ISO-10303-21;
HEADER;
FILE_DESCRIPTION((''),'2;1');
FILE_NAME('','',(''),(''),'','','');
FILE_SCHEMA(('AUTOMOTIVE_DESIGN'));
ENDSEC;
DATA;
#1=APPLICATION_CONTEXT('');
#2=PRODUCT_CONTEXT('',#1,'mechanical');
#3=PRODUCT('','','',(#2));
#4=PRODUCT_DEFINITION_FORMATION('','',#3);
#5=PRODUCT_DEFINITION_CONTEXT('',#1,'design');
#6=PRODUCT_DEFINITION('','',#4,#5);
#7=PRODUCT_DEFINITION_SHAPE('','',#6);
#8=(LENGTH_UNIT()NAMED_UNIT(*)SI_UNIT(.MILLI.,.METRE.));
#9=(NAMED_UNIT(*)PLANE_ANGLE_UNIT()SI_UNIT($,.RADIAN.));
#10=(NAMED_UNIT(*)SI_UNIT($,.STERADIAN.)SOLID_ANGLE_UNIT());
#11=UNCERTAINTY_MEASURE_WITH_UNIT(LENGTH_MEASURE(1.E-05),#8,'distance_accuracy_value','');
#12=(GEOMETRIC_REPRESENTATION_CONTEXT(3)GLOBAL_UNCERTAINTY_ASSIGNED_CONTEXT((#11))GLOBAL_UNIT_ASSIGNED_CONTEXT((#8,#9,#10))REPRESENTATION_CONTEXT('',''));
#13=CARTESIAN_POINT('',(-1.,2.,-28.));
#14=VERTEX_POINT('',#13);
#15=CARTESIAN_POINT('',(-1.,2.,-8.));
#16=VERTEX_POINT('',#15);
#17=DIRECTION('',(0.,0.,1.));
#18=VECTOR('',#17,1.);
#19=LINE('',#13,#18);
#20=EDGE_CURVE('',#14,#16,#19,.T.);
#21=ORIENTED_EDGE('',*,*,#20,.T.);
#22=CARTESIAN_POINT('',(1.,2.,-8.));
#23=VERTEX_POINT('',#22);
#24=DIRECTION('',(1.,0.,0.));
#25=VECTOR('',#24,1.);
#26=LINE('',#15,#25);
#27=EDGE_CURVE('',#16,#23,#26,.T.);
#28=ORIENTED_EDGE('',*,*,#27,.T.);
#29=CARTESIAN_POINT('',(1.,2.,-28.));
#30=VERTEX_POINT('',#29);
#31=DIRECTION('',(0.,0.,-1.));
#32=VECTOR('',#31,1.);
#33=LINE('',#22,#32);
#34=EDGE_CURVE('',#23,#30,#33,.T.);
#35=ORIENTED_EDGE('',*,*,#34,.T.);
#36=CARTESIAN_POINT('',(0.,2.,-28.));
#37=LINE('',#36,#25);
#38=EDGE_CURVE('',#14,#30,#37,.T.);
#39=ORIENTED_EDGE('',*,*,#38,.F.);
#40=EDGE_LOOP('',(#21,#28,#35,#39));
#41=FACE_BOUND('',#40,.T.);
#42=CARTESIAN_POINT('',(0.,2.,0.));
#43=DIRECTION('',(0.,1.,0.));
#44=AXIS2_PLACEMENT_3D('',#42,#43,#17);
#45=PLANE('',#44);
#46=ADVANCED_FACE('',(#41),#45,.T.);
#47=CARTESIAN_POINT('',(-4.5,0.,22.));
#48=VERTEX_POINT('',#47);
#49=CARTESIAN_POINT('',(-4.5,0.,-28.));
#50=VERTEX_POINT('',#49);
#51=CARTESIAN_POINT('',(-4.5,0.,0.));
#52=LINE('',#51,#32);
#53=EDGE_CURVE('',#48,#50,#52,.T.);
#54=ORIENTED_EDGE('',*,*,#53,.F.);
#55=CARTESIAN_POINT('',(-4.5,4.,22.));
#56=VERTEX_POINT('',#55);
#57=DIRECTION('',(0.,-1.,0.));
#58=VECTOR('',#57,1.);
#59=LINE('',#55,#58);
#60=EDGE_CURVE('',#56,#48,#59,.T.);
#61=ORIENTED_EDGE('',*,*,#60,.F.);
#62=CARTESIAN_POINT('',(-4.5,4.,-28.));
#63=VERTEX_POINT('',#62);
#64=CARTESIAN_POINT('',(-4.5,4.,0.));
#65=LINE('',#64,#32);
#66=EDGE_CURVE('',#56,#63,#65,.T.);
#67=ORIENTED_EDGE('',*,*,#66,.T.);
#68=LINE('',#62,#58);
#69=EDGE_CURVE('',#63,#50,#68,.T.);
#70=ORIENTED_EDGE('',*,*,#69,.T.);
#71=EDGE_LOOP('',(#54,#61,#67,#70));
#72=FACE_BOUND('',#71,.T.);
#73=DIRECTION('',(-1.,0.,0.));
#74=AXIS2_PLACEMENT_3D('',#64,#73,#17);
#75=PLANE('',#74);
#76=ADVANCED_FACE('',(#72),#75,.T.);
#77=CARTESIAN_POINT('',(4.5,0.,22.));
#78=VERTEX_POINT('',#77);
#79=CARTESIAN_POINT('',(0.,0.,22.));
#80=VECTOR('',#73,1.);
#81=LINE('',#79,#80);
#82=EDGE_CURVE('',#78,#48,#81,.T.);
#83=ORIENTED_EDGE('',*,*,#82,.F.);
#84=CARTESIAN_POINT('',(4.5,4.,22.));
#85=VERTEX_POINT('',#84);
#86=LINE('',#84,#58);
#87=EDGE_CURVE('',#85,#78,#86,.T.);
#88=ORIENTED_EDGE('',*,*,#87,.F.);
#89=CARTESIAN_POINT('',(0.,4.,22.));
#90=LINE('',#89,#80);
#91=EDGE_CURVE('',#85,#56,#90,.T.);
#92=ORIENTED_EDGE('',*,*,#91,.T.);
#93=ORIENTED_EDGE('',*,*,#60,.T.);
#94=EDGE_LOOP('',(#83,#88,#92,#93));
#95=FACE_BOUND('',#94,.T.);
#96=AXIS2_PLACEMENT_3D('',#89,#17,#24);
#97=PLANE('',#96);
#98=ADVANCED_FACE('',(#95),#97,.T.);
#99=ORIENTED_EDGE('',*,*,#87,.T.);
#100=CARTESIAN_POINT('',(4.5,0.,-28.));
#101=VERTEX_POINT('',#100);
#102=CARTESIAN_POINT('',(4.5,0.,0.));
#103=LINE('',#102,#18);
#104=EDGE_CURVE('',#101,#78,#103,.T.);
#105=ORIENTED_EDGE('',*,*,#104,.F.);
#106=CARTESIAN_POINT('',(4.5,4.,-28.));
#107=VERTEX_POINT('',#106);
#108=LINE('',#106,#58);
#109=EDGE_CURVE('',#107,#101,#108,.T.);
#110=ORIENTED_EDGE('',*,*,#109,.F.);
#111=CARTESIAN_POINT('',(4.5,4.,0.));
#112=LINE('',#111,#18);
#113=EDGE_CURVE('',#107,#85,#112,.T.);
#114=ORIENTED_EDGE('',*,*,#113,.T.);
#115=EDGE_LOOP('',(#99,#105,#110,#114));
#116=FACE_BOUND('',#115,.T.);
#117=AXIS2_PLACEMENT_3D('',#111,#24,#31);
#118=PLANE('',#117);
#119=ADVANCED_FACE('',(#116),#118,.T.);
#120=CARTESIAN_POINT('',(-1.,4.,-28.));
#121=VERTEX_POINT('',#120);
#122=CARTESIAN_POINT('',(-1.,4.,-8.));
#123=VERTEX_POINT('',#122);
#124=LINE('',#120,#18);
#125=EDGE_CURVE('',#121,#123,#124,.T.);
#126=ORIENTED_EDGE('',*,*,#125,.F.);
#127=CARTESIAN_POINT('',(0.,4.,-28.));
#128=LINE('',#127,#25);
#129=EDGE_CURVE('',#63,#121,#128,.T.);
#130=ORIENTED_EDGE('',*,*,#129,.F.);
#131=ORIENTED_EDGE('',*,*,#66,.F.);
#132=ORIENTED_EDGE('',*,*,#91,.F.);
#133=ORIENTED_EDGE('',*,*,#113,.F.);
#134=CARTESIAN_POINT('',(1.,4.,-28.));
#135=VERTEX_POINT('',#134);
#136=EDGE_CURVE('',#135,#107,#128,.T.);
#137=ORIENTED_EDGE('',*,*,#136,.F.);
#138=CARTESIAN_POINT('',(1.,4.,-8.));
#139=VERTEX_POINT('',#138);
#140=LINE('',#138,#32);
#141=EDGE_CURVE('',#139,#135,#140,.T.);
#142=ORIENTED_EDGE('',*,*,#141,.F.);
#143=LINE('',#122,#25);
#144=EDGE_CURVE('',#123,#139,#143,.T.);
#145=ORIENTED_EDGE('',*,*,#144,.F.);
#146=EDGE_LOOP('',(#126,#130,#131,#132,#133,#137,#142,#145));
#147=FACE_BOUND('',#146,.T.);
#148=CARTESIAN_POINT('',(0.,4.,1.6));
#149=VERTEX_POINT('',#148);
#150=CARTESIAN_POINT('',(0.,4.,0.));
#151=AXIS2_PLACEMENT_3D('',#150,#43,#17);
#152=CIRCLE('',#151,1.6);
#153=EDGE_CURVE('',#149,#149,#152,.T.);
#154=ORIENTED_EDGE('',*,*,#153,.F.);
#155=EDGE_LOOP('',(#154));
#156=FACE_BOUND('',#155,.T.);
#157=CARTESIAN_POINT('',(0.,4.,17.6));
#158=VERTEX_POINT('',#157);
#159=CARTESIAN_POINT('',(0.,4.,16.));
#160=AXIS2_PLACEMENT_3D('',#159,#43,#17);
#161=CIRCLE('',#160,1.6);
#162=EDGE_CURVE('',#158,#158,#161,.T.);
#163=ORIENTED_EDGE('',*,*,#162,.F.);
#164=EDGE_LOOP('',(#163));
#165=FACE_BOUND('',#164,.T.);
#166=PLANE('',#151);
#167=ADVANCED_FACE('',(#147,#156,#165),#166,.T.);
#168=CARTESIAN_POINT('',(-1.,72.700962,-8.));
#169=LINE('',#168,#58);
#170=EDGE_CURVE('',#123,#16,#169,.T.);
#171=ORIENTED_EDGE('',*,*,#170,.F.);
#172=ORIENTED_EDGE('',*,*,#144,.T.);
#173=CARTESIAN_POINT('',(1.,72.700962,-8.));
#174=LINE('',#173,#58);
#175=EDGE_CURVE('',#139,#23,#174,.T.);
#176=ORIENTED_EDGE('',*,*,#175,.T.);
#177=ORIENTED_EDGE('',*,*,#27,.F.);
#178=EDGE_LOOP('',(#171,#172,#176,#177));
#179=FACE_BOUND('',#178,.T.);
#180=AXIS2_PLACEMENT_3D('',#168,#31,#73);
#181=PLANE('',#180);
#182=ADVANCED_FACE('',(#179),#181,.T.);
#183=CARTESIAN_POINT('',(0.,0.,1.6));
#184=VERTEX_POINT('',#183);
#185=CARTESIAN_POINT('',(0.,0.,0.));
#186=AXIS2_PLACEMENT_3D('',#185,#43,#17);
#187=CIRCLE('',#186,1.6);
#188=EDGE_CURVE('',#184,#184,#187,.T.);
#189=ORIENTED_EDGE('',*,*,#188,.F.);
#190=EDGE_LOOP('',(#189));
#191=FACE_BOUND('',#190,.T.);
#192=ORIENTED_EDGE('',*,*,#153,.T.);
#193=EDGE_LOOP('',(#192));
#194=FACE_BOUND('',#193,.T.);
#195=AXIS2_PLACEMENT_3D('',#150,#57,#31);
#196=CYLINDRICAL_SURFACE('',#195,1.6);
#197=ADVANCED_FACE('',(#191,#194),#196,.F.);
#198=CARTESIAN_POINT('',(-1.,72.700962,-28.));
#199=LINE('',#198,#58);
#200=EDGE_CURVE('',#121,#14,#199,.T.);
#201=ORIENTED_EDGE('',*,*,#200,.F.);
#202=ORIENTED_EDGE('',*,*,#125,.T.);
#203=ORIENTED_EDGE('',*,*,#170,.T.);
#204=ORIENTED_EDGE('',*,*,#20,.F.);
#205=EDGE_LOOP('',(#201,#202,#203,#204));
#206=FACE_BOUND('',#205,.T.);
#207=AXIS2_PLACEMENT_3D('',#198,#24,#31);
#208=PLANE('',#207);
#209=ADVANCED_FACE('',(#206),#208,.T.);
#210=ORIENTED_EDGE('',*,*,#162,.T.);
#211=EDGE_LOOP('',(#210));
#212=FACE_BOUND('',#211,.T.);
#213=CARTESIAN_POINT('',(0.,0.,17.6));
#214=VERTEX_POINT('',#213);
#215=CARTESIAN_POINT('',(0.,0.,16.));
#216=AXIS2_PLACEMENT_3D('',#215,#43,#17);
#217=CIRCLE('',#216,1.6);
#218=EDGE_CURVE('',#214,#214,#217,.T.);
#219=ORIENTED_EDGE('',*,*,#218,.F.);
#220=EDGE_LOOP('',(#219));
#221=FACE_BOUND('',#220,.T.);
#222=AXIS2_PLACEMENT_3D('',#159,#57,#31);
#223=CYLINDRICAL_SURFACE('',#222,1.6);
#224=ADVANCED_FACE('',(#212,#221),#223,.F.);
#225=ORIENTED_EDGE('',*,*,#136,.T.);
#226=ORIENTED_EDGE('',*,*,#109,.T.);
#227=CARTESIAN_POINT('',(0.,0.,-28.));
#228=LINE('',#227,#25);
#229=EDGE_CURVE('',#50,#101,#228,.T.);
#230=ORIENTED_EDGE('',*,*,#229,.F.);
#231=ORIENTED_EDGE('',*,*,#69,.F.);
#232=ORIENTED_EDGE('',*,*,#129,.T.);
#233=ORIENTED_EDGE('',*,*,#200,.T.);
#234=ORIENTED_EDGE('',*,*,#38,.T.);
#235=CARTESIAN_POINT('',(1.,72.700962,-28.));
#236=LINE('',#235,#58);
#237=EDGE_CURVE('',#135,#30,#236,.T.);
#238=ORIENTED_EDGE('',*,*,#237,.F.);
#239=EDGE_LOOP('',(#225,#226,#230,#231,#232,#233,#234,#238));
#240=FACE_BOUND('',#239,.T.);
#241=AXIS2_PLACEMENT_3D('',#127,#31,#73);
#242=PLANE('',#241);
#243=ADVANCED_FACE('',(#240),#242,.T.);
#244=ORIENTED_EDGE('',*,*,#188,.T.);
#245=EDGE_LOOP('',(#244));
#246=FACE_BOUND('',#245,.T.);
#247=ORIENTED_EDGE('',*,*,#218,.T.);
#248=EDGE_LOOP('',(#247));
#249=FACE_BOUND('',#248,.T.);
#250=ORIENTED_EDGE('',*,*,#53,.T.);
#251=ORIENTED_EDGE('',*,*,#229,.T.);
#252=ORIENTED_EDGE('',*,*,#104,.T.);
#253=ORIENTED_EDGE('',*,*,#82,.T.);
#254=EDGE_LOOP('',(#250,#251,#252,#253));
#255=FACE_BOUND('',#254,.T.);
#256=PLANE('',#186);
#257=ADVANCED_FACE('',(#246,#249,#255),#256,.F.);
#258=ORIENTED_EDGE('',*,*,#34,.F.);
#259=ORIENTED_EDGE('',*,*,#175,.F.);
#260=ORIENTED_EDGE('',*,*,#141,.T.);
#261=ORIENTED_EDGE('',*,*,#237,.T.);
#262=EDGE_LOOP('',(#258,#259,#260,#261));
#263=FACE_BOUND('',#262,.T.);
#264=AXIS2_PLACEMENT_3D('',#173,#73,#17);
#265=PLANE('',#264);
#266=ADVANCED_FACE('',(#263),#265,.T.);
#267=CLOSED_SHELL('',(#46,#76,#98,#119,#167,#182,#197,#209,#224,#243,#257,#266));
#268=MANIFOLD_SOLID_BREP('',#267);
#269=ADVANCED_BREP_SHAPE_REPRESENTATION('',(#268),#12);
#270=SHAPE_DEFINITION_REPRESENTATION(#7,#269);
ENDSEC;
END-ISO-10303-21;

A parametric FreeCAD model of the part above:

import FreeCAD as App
import Part
import Sketcher
from FreeCAD import Vector
Q = App.Units.Quantity

doc = App.newDocument("Part")
body = doc.addObject("PartDesign::Body", "Body")

# Sketch on XZ plane
sketch1 = body.newObject("Sketcher::SketchObject", "Sketch")
sketch1.AttachmentSupport = (doc.getObject("XZ_Plane"), [""])
sketch1.MapMode = "FlatFace"
sketch1.addGeometry([
    Part.LineSegment(Vector(-4.5, 22, 0), Vector(4.5, 22, 0)),  # 0
    Part.LineSegment(Vector(4.5, 22, 0), Vector(4.5, -28, 0)),  # 1
    Part.LineSegment(Vector(4.5, -28, 0), Vector(-4.5, -28, 0)),  # 2
    Part.LineSegment(Vector(-4.5, -28, 0), Vector(-4.5, 22, 0)),  # 3
    Part.Circle(Vector(0, 16, 0), Vector(0, 0, 1), 1.6),  # 4
    Part.Circle(Vector(0, 0, 0), Vector(0, 0, 1), 1.6),  # 5
], False)
sketch1.addConstraint([
    Sketcher.Constraint("Coincident", 0, 2, 1, 1),
    Sketcher.Constraint("Coincident", 1, 2, 2, 1),
    Sketcher.Constraint("Coincident", 2, 2, 3, 1),
    Sketcher.Constraint("Coincident", 3, 2, 0, 1),
    Sketcher.Constraint("Horizontal", 0),
    Sketcher.Constraint("Vertical", 1),
    Sketcher.Constraint("Horizontal", 2),
    Sketcher.Constraint("Vertical", 3),
    Sketcher.Constraint("Coincident", 5, 3, -1, 1),
    Sketcher.Constraint("Equal", 4, 5),
    Sketcher.Constraint("PointOnObject", 4, 3, -2),
    Sketcher.Constraint("Diameter", 4, Q("3.2 mm")),
    Sketcher.Constraint("DistanceX", 0, 1, 0, 2, Q("9 mm")),
    Sketcher.Constraint("DistanceY", 1, 2, 1, 1, Q("50 mm")),
    Sketcher.Constraint("DistanceY", -1, 1, 4, 3, Q("16 mm")),
    Sketcher.Constraint("DistanceY", -1, 1, 0, 2, Q("22 mm")),
    Sketcher.Constraint("DistanceX", -1, 1, 0, 2, Q("4.5 mm")),
])
pad1 = body.newObject("PartDesign::Pad", "Pad")
pad1.Profile = sketch1
pad1.Length = 4
pad1.Reversed = True

# Sketch on XZ plane
sketch2 = body.newObject("Sketcher::SketchObject", "Sketch001")
sketch2.AttachmentSupport = (doc.getObject("XZ_Plane"), [""])
sketch2.MapMode = "FlatFace"
sketch2.AttachmentOffset = App.Placement(Vector(0, 0, -4), App.Rotation())
sketch2.addGeometry([
    Part.LineSegment(Vector(-1, -8, 0), Vector(1, -8, 0)),
    Part.LineSegment(Vector(1, -8, 0), Vector(1, -359.8, 0)),
    Part.LineSegment(Vector(1, -359.8, 0), Vector(-1, -359.8, 0)),
    Part.LineSegment(Vector(-1, -359.8, 0), Vector(-1, -8, 0)),
], False)
sketch2.addConstraint([
    Sketcher.Constraint("Coincident", 0, 2, 1, 1),
    Sketcher.Constraint("Coincident", 1, 2, 2, 1),
    Sketcher.Constraint("Coincident", 2, 2, 3, 1),
    Sketcher.Constraint("Coincident", 3, 2, 0, 1),
    Sketcher.Constraint("Horizontal", 0),
    Sketcher.Constraint("Vertical", 1),
    Sketcher.Constraint("Horizontal", 2),
    Sketcher.Constraint("Vertical", 3),
    Sketcher.Constraint("DistanceX", 0, 1, 0, 2, Q("2 mm")),
    Sketcher.Constraint("DistanceX", -1, 1, 0, 2, Q("1 mm")),
    Sketcher.Constraint("DistanceY", 0, 2, -1, 1, Q("8 mm")),
    Sketcher.Constraint("DistanceY", 1, 2, 1, 1, Q("351.809543 mm")),
])
pocket1 = body.newObject("PartDesign::Pocket", "Pocket")
pocket1.Profile = sketch2
pocket1.Type = "TwoLengths"
pocket1.Length = 29.640007
pocket1.Length2 = 2

doc.recompute()
